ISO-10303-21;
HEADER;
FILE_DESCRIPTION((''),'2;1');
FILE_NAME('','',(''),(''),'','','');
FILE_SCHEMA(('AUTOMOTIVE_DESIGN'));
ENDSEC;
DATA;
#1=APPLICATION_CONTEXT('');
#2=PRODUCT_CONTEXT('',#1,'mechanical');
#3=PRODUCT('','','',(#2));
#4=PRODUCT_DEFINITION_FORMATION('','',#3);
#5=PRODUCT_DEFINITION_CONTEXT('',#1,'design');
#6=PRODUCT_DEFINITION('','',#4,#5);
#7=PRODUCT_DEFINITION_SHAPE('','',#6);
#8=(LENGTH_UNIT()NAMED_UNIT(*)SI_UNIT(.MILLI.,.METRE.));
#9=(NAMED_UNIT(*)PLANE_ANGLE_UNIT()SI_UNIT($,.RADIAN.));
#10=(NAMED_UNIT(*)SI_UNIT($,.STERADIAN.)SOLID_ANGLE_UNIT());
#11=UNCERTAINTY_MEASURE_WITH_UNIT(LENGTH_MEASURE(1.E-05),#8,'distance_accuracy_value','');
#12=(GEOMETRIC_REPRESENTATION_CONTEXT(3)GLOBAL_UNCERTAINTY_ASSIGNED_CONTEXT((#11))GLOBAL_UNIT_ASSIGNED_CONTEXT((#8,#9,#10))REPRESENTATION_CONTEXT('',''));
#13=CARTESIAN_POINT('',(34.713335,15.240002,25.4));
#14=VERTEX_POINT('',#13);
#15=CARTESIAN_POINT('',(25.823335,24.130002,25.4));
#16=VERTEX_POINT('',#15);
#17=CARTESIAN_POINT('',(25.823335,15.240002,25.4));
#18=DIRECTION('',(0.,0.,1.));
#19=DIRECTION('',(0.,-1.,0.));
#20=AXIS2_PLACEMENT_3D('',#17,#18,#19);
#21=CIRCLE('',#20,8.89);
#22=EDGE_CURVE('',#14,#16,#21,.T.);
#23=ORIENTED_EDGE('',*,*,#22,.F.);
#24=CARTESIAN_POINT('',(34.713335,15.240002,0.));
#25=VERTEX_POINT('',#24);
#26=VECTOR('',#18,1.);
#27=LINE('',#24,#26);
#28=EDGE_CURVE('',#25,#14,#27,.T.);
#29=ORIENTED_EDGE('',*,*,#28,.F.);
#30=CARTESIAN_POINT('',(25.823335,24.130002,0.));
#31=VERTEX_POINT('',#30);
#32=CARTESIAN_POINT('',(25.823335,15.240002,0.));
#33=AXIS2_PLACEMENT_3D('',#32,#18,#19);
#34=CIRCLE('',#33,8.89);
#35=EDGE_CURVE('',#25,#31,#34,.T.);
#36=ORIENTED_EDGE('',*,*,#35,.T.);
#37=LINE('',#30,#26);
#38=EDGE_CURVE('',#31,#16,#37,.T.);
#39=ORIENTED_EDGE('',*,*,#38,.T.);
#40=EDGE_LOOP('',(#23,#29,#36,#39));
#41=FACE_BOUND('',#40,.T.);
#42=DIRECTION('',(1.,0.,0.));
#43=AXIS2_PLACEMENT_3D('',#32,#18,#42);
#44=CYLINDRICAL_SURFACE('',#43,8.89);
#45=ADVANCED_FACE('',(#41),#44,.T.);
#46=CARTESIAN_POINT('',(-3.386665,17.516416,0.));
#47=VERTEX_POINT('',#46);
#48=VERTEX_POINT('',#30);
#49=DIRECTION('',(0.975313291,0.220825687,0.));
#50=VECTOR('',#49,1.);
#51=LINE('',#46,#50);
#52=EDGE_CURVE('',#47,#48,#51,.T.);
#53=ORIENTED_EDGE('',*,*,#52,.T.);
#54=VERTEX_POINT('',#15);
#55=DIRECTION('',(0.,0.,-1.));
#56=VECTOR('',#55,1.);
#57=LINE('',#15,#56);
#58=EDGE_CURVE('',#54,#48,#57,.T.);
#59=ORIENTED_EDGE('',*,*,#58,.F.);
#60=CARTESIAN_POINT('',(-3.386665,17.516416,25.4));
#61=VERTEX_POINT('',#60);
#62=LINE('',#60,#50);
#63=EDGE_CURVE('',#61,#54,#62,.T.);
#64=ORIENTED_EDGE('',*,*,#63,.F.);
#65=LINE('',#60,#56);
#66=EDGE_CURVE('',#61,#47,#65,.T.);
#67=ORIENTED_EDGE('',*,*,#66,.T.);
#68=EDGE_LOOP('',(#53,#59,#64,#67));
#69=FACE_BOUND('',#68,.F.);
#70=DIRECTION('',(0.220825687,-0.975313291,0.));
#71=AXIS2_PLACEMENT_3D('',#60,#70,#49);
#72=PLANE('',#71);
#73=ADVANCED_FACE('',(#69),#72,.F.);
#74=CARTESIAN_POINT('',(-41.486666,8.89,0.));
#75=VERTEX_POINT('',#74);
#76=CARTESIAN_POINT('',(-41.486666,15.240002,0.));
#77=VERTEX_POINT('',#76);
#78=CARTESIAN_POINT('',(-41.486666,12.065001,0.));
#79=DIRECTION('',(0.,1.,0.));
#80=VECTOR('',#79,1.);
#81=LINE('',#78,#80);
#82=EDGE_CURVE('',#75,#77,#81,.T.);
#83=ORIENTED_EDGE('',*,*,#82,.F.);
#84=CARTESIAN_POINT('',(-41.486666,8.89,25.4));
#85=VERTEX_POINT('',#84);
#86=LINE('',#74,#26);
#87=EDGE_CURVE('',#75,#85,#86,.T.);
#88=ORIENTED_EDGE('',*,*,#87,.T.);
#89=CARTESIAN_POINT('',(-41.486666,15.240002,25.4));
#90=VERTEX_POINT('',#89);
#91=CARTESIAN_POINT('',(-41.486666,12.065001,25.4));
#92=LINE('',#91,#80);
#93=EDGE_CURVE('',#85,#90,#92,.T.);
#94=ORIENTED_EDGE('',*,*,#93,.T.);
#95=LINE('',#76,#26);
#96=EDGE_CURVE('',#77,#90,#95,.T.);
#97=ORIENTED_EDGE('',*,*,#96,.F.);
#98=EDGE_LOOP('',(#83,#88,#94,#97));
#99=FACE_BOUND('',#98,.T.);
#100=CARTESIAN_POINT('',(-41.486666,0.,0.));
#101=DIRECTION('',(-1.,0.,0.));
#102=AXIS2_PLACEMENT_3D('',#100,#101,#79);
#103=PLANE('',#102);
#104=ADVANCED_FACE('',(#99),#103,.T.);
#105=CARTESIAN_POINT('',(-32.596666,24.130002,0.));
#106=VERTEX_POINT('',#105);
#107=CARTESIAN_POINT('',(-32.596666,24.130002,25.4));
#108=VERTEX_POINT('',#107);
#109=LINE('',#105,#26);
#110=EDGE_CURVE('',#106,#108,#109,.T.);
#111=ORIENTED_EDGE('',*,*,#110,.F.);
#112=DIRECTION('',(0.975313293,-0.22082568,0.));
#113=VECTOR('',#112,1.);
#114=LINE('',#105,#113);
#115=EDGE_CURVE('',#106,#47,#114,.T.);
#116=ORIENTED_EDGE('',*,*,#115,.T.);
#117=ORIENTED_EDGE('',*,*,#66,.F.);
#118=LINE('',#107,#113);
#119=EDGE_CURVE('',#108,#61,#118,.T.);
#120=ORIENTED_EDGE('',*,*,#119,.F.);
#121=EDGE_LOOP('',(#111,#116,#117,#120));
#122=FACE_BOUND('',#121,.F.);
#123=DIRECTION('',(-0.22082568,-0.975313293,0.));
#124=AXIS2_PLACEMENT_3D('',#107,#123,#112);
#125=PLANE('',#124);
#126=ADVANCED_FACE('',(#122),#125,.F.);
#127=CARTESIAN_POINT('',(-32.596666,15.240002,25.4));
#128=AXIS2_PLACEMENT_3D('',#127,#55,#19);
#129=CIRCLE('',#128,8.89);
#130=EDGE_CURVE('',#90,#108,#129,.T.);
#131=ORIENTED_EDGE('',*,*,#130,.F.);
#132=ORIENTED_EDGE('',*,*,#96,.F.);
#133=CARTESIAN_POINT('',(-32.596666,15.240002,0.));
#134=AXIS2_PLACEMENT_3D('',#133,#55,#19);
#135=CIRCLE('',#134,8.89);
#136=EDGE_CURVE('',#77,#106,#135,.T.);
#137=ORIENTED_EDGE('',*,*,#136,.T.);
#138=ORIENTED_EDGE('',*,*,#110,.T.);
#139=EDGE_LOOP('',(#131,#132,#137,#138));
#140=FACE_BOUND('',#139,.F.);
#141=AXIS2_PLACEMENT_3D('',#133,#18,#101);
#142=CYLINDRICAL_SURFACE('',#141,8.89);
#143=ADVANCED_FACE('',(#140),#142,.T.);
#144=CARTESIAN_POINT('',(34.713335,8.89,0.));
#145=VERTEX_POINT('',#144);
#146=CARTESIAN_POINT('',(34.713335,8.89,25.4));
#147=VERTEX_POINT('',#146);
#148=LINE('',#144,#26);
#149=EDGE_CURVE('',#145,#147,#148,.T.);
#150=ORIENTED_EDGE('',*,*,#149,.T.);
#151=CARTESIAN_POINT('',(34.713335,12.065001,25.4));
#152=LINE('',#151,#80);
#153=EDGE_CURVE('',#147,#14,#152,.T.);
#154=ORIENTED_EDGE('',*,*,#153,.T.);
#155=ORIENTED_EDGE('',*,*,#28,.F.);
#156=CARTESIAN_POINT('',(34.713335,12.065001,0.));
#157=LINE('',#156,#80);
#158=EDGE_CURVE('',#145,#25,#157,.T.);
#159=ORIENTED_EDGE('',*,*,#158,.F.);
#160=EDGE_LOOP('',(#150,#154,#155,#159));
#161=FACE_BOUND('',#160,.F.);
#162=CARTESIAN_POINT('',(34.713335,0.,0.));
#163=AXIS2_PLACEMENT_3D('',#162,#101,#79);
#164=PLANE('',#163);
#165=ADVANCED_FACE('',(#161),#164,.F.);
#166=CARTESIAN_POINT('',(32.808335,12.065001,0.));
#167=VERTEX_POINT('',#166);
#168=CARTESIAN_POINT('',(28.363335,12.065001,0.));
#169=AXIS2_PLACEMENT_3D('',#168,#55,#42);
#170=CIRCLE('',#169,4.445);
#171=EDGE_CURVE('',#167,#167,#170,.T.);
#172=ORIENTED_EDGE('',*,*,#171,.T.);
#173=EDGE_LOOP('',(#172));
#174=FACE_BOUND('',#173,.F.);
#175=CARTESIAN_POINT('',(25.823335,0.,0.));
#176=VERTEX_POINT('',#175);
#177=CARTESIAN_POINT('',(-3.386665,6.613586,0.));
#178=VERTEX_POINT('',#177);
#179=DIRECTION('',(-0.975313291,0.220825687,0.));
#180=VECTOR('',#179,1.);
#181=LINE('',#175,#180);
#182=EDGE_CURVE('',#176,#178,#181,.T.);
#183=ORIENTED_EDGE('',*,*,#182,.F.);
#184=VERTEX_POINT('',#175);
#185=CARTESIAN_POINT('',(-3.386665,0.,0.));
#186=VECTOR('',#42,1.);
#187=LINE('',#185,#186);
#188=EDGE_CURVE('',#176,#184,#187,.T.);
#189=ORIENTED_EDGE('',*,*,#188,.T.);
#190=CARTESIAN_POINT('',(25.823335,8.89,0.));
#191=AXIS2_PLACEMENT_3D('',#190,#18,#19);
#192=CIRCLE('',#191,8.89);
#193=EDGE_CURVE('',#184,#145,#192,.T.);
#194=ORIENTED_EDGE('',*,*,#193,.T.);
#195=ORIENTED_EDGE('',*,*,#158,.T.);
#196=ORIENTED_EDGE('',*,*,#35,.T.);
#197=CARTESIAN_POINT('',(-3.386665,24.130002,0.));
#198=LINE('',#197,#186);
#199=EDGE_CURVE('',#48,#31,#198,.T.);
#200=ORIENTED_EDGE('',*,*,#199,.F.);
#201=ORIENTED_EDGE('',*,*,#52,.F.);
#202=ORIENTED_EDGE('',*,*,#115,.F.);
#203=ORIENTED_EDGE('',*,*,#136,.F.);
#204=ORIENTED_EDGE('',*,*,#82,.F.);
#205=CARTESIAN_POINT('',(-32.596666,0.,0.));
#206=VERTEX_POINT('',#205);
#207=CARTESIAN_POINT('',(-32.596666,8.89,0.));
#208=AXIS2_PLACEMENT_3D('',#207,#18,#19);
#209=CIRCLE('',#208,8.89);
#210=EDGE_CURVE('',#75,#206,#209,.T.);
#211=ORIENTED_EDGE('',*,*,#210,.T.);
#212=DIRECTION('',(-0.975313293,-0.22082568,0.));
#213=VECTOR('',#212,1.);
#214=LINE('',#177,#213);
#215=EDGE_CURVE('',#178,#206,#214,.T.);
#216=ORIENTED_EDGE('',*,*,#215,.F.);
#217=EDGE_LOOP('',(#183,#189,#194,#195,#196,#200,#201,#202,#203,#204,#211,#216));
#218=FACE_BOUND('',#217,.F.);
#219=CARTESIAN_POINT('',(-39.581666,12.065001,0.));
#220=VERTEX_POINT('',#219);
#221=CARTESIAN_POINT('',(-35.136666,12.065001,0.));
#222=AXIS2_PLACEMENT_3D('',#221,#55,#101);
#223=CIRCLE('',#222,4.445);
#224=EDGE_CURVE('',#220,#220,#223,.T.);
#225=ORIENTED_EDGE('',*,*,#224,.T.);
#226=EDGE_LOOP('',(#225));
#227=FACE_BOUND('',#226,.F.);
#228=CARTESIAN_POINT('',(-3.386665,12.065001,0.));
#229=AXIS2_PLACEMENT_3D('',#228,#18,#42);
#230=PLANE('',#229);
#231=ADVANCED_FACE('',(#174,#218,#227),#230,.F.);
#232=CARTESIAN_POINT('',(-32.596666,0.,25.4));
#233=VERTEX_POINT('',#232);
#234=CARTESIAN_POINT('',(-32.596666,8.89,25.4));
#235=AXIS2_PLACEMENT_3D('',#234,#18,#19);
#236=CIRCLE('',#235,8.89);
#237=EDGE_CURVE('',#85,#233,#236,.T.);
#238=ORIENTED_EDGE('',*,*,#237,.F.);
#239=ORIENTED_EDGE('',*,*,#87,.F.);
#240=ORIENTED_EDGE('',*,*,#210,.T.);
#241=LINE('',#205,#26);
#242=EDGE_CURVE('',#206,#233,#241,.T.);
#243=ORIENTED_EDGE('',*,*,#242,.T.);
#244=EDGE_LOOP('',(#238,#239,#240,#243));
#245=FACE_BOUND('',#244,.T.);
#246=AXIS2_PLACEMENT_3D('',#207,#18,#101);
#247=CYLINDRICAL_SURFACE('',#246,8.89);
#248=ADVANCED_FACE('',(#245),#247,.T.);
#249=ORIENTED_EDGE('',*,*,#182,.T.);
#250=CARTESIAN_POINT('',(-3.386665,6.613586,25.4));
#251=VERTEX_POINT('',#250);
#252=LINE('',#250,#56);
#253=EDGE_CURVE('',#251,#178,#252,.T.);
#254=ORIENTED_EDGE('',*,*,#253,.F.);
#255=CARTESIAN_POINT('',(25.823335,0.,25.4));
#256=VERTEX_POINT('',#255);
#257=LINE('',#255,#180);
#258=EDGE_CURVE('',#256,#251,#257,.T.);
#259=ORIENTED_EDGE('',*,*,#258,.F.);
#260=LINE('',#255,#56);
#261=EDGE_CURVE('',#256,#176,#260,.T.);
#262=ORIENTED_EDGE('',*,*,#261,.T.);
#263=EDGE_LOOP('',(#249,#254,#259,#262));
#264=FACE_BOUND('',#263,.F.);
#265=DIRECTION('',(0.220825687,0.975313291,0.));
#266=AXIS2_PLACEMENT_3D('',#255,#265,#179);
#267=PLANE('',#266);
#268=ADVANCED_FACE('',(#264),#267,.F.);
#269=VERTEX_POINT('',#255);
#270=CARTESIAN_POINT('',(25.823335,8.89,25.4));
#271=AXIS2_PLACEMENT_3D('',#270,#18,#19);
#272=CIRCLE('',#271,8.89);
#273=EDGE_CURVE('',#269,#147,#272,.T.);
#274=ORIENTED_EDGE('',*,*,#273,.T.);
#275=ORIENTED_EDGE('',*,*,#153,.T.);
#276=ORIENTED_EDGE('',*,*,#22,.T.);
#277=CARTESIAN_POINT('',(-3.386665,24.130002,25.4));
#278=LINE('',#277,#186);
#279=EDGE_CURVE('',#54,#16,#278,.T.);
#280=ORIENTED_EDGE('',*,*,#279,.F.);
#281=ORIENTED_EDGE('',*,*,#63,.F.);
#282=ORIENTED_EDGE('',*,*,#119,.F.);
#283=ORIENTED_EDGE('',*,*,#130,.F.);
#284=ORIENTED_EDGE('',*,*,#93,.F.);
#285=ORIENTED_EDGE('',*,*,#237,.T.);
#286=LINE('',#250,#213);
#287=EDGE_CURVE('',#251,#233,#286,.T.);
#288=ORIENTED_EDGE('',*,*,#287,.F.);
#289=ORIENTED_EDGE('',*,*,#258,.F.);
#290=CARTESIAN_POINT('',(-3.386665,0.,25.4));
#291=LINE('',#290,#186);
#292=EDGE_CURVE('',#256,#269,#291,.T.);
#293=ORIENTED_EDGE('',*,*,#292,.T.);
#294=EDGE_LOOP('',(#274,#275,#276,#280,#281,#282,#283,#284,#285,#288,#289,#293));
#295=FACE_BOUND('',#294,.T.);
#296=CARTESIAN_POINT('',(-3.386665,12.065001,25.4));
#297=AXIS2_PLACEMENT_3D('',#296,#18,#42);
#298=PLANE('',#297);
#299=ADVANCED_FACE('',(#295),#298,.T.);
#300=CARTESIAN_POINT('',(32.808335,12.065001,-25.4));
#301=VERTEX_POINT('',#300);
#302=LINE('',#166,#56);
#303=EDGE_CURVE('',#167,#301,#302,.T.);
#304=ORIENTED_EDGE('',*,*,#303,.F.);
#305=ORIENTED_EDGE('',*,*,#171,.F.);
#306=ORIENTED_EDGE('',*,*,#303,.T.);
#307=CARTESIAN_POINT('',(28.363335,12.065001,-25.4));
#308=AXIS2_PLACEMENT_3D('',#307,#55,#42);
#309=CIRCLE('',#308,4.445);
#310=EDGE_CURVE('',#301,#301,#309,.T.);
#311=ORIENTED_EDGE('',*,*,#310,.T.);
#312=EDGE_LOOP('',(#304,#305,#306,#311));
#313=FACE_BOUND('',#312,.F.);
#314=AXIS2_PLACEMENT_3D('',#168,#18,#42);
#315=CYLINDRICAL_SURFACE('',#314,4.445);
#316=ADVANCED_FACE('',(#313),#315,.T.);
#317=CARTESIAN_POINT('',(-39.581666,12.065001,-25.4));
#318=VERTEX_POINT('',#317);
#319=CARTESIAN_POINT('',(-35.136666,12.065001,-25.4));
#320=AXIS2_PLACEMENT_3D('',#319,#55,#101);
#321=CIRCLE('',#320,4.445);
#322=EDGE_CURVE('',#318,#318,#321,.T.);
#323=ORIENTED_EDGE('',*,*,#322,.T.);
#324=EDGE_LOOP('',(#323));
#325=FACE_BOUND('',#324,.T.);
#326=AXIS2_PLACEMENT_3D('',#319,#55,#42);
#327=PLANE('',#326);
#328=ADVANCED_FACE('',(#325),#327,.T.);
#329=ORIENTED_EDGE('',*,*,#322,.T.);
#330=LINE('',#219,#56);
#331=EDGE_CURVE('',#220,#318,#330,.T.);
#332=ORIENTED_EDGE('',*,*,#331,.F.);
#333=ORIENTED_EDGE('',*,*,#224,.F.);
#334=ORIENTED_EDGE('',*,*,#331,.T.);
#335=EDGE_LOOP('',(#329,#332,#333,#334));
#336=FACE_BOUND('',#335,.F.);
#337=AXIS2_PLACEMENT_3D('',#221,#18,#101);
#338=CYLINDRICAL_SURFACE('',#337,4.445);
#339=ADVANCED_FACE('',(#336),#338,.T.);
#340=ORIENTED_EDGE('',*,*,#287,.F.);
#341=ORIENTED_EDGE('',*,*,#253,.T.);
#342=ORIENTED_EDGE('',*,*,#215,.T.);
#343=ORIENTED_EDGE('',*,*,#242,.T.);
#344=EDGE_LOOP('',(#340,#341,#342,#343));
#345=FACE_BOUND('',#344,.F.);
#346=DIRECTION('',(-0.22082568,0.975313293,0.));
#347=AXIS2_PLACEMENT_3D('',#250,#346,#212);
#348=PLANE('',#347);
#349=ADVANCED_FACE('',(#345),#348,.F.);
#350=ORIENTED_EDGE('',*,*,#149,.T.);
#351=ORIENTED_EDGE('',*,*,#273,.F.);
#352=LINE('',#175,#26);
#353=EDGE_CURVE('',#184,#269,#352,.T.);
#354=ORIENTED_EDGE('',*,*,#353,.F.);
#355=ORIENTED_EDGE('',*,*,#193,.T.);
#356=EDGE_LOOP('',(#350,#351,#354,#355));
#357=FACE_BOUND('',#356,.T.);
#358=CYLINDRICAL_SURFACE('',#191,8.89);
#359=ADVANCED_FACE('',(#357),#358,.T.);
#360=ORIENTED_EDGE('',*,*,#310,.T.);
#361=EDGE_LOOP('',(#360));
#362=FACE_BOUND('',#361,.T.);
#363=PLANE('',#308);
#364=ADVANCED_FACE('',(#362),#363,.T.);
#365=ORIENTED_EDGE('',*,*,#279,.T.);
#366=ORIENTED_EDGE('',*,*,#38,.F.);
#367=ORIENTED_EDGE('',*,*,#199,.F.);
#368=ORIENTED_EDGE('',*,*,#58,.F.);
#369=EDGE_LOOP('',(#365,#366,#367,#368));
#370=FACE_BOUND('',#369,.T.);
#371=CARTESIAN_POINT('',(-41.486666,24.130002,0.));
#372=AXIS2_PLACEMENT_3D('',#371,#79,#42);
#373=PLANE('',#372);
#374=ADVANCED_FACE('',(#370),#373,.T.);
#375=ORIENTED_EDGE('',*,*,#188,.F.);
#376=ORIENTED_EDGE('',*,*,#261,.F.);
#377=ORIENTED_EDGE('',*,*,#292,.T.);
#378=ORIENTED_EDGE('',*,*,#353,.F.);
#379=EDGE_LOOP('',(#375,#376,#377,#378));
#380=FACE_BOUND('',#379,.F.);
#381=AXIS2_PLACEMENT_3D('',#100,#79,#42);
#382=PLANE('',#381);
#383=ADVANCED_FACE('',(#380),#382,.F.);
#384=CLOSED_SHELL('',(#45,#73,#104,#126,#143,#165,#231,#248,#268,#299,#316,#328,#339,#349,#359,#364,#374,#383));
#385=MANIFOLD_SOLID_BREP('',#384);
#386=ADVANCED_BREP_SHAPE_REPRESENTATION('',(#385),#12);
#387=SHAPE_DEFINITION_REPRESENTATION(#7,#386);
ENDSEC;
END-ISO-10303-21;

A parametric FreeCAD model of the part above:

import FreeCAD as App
import Part
import Sketcher
from FreeCAD import Vector
Q = App.Units.Quantity


def edges_at(feature, points):
    """Names of the edges that pass closest to the given points."""
    edges = feature.Shape.Edges
    near = lambda p: min(range(len(edges)), key=lambda i: edges[i].distToShape(Part.Vertex(*p))[0])
    return sorted({f"Edge{near(p) + 1}" for p in points})

doc = App.newDocument("Part")
body = doc.addObject("PartDesign::Body", "Body")

sketch1 = body.newObject("Sketcher::SketchObject", "Sketch")
sketch1.AttachmentSupport = (doc.getObject("XY_Plane"), [""])
sketch1.MapMode = "FlatFace"
sketch1.addGeometry([
    Part.LineSegment(Vector(-41.486666, 24.130002, 0), Vector(-41.486666, 0, 0)),
    Part.LineSegment(Vector(-41.486666, 0, 0), Vector(34.713335, 0, 0)),
    Part.LineSegment(Vector(34.713335, 0, 0), Vector(34.713335, 24.130002, 0)),
    Part.LineSegment(Vector(34.713335, 24.130002, 0), Vector(-41.486666, 24.130002, 0)),
], False)
sketch1.addConstraint([
    Sketcher.Constraint("Coincident", 0, 2, 1, 1),
    Sketcher.Constraint("Coincident", 1, 2, 2, 1),
    Sketcher.Constraint("Coincident", 2, 2, 3, 1),
    Sketcher.Constraint("Coincident", 3, 2, 0, 1),
    Sketcher.Constraint("Vertical", 0),
    Sketcher.Constraint("Horizontal", 1),
    Sketcher.Constraint("Vertical", 2),
    Sketcher.Constraint("Horizontal", 3),
    Sketcher.Constraint("PointOnObject", 0, 2, -1),
    Sketcher.Constraint("DistanceX", 1, 1, 1, 2, Q("3 in")),
    Sketcher.Constraint("DistanceY", 0, 2, 0, 1, Q("0.9500001 in")),
    Sketcher.Constraint("DistanceX", 0, 2, -1, 1, 41.486666),
])
pad1 = body.newObject("PartDesign::Pad", "Pad")
pad1.Profile = sketch1
pad1.Length = Q("1 in")
doc.recompute()

fillet = body.newObject("PartDesign::Fillet", "Fillet")
fillet.Base = (pad1, edges_at(pad1, [
    (-41.487, 24.13, 12.7),
    (34.713, 24.13, 12.7),
    (-41.487, 0, 12.7),
    (34.713, 0, 12.7),
]))
fillet.Radius = Q("0.35 in")

sketch2 = body.newObject("Sketcher::SketchObject", "Sketch001")
sketch2.AttachmentSupport = (doc.getObject("XY_Plane"), [""])
sketch2.MapMode = "FlatFace"
sketch2.AttachmentOffset = App.Placement(Vector(0, 0, 1 * 25.4), App.Rotation())
sketch2.addGeometry([
    Part.LineSegment(Vector(25.823335, 24.130002, 0), Vector(-32.596666, 24.130002, 0)),
    Part.LineSegment(Vector(-32.596666, 24.130002, 0), Vector(-3.386665, 17.516416, 0)),
    Part.LineSegment(Vector(-3.386665, 17.516416, 0), Vector(25.823335, 24.130002, 0)),
    Part.LineSegment(Vector(25.823335, 0, 0), Vector(-3.386665, 6.613586, 0)),
    Part.LineSegment(Vector(-3.386665, 6.613586, 0), Vector(-32.596666, 0, 0)),
    Part.LineSegment(Vector(-32.596666, 0, 0), Vector(25.823335, 0, 0)),
], False)
sketch2.addConstraint([
    Sketcher.Constraint("Coincident", 0, 2, 1, 1),
    Sketcher.Constraint("Coincident", 1, 2, 2, 1),
    Sketcher.Constraint("Coincident", 2, 2, 0, 1),
    Sketcher.Constraint("Coincident", 3, 2, 4, 1),
    Sketcher.Constraint("Coincident", 4, 2, 5, 1),
    Sketcher.Constraint("Coincident", 5, 2, 3, 1),
    Sketcher.Constraint("Horizontal", 0),
    Sketcher.Constraint("Horizontal", 5),
    Sketcher.Constraint("PointOnObject", 4, 2, -1),
    Sketcher.Constraint("Parallel", 1, 3),
    Sketcher.Constraint("Parallel", 2, 4),
    Sketcher.Constraint("Vertical", 1, 2, 3, 2),
    Sketcher.Constraint("Vertical", 0, 2, 4, 2),
    Sketcher.Constraint("Vertical", 2, 2, 5, 2),
    Sketcher.Constraint("DistanceX", 0, 2, 0, 1, Q("2.3 in")),
    Sketcher.Constraint("DistanceY", -1, 1, 0, 2, Q("0.9500001 in")),
    Sketcher.Constraint("Distance", 1, 29.949352),
    Sketcher.Constraint("DistanceX", 0, 2, -1, 1, 32.596666),
])
pocket1 = body.newObject("PartDesign::Pocket", "Pocket")
pocket1.Profile = sketch2
pocket1.Length = Q("1 in")

sketch3 = body.newObject("Sketcher::SketchObject", "Sketch002")
sketch3.AttachmentSupport = (doc.getObject("XY_Plane"), [""])
sketch3.MapMode = "FlatFace"
sketch3.addGeometry([
    Part.Circle(Vector(-35.136666, 12.065001, 0), Vector(0, 0, 1), 4.445),
    Part.Circle(Vector(28.363335, 12.065001, 0), Vector(0, 0, 1), 4.445),
], False)
sketch3.addConstraint([
    Sketcher.Constraint("Equal", 0, 1),
    Sketcher.Constraint("Horizontal", 0, 3, 1, 3),
    Sketcher.Constraint("Diameter", 0, Q("0.35 in")),
    Sketcher.Constraint("DistanceX", 0, 3, 1, 3, Q("2.5 in")),
    Sketcher.Constraint("DistanceY", -1, 1, 0, 3, Q("0.475 in")),
    Sketcher.Constraint("DistanceX", 0, 3, -1, 1, 35.136666),
])
pad2 = body.newObject("PartDesign::Pad", "Pad001")
pad2.Profile = sketch3
pad2.Length = Q("1 in")
pad2.Reversed = True

doc.recompute()
